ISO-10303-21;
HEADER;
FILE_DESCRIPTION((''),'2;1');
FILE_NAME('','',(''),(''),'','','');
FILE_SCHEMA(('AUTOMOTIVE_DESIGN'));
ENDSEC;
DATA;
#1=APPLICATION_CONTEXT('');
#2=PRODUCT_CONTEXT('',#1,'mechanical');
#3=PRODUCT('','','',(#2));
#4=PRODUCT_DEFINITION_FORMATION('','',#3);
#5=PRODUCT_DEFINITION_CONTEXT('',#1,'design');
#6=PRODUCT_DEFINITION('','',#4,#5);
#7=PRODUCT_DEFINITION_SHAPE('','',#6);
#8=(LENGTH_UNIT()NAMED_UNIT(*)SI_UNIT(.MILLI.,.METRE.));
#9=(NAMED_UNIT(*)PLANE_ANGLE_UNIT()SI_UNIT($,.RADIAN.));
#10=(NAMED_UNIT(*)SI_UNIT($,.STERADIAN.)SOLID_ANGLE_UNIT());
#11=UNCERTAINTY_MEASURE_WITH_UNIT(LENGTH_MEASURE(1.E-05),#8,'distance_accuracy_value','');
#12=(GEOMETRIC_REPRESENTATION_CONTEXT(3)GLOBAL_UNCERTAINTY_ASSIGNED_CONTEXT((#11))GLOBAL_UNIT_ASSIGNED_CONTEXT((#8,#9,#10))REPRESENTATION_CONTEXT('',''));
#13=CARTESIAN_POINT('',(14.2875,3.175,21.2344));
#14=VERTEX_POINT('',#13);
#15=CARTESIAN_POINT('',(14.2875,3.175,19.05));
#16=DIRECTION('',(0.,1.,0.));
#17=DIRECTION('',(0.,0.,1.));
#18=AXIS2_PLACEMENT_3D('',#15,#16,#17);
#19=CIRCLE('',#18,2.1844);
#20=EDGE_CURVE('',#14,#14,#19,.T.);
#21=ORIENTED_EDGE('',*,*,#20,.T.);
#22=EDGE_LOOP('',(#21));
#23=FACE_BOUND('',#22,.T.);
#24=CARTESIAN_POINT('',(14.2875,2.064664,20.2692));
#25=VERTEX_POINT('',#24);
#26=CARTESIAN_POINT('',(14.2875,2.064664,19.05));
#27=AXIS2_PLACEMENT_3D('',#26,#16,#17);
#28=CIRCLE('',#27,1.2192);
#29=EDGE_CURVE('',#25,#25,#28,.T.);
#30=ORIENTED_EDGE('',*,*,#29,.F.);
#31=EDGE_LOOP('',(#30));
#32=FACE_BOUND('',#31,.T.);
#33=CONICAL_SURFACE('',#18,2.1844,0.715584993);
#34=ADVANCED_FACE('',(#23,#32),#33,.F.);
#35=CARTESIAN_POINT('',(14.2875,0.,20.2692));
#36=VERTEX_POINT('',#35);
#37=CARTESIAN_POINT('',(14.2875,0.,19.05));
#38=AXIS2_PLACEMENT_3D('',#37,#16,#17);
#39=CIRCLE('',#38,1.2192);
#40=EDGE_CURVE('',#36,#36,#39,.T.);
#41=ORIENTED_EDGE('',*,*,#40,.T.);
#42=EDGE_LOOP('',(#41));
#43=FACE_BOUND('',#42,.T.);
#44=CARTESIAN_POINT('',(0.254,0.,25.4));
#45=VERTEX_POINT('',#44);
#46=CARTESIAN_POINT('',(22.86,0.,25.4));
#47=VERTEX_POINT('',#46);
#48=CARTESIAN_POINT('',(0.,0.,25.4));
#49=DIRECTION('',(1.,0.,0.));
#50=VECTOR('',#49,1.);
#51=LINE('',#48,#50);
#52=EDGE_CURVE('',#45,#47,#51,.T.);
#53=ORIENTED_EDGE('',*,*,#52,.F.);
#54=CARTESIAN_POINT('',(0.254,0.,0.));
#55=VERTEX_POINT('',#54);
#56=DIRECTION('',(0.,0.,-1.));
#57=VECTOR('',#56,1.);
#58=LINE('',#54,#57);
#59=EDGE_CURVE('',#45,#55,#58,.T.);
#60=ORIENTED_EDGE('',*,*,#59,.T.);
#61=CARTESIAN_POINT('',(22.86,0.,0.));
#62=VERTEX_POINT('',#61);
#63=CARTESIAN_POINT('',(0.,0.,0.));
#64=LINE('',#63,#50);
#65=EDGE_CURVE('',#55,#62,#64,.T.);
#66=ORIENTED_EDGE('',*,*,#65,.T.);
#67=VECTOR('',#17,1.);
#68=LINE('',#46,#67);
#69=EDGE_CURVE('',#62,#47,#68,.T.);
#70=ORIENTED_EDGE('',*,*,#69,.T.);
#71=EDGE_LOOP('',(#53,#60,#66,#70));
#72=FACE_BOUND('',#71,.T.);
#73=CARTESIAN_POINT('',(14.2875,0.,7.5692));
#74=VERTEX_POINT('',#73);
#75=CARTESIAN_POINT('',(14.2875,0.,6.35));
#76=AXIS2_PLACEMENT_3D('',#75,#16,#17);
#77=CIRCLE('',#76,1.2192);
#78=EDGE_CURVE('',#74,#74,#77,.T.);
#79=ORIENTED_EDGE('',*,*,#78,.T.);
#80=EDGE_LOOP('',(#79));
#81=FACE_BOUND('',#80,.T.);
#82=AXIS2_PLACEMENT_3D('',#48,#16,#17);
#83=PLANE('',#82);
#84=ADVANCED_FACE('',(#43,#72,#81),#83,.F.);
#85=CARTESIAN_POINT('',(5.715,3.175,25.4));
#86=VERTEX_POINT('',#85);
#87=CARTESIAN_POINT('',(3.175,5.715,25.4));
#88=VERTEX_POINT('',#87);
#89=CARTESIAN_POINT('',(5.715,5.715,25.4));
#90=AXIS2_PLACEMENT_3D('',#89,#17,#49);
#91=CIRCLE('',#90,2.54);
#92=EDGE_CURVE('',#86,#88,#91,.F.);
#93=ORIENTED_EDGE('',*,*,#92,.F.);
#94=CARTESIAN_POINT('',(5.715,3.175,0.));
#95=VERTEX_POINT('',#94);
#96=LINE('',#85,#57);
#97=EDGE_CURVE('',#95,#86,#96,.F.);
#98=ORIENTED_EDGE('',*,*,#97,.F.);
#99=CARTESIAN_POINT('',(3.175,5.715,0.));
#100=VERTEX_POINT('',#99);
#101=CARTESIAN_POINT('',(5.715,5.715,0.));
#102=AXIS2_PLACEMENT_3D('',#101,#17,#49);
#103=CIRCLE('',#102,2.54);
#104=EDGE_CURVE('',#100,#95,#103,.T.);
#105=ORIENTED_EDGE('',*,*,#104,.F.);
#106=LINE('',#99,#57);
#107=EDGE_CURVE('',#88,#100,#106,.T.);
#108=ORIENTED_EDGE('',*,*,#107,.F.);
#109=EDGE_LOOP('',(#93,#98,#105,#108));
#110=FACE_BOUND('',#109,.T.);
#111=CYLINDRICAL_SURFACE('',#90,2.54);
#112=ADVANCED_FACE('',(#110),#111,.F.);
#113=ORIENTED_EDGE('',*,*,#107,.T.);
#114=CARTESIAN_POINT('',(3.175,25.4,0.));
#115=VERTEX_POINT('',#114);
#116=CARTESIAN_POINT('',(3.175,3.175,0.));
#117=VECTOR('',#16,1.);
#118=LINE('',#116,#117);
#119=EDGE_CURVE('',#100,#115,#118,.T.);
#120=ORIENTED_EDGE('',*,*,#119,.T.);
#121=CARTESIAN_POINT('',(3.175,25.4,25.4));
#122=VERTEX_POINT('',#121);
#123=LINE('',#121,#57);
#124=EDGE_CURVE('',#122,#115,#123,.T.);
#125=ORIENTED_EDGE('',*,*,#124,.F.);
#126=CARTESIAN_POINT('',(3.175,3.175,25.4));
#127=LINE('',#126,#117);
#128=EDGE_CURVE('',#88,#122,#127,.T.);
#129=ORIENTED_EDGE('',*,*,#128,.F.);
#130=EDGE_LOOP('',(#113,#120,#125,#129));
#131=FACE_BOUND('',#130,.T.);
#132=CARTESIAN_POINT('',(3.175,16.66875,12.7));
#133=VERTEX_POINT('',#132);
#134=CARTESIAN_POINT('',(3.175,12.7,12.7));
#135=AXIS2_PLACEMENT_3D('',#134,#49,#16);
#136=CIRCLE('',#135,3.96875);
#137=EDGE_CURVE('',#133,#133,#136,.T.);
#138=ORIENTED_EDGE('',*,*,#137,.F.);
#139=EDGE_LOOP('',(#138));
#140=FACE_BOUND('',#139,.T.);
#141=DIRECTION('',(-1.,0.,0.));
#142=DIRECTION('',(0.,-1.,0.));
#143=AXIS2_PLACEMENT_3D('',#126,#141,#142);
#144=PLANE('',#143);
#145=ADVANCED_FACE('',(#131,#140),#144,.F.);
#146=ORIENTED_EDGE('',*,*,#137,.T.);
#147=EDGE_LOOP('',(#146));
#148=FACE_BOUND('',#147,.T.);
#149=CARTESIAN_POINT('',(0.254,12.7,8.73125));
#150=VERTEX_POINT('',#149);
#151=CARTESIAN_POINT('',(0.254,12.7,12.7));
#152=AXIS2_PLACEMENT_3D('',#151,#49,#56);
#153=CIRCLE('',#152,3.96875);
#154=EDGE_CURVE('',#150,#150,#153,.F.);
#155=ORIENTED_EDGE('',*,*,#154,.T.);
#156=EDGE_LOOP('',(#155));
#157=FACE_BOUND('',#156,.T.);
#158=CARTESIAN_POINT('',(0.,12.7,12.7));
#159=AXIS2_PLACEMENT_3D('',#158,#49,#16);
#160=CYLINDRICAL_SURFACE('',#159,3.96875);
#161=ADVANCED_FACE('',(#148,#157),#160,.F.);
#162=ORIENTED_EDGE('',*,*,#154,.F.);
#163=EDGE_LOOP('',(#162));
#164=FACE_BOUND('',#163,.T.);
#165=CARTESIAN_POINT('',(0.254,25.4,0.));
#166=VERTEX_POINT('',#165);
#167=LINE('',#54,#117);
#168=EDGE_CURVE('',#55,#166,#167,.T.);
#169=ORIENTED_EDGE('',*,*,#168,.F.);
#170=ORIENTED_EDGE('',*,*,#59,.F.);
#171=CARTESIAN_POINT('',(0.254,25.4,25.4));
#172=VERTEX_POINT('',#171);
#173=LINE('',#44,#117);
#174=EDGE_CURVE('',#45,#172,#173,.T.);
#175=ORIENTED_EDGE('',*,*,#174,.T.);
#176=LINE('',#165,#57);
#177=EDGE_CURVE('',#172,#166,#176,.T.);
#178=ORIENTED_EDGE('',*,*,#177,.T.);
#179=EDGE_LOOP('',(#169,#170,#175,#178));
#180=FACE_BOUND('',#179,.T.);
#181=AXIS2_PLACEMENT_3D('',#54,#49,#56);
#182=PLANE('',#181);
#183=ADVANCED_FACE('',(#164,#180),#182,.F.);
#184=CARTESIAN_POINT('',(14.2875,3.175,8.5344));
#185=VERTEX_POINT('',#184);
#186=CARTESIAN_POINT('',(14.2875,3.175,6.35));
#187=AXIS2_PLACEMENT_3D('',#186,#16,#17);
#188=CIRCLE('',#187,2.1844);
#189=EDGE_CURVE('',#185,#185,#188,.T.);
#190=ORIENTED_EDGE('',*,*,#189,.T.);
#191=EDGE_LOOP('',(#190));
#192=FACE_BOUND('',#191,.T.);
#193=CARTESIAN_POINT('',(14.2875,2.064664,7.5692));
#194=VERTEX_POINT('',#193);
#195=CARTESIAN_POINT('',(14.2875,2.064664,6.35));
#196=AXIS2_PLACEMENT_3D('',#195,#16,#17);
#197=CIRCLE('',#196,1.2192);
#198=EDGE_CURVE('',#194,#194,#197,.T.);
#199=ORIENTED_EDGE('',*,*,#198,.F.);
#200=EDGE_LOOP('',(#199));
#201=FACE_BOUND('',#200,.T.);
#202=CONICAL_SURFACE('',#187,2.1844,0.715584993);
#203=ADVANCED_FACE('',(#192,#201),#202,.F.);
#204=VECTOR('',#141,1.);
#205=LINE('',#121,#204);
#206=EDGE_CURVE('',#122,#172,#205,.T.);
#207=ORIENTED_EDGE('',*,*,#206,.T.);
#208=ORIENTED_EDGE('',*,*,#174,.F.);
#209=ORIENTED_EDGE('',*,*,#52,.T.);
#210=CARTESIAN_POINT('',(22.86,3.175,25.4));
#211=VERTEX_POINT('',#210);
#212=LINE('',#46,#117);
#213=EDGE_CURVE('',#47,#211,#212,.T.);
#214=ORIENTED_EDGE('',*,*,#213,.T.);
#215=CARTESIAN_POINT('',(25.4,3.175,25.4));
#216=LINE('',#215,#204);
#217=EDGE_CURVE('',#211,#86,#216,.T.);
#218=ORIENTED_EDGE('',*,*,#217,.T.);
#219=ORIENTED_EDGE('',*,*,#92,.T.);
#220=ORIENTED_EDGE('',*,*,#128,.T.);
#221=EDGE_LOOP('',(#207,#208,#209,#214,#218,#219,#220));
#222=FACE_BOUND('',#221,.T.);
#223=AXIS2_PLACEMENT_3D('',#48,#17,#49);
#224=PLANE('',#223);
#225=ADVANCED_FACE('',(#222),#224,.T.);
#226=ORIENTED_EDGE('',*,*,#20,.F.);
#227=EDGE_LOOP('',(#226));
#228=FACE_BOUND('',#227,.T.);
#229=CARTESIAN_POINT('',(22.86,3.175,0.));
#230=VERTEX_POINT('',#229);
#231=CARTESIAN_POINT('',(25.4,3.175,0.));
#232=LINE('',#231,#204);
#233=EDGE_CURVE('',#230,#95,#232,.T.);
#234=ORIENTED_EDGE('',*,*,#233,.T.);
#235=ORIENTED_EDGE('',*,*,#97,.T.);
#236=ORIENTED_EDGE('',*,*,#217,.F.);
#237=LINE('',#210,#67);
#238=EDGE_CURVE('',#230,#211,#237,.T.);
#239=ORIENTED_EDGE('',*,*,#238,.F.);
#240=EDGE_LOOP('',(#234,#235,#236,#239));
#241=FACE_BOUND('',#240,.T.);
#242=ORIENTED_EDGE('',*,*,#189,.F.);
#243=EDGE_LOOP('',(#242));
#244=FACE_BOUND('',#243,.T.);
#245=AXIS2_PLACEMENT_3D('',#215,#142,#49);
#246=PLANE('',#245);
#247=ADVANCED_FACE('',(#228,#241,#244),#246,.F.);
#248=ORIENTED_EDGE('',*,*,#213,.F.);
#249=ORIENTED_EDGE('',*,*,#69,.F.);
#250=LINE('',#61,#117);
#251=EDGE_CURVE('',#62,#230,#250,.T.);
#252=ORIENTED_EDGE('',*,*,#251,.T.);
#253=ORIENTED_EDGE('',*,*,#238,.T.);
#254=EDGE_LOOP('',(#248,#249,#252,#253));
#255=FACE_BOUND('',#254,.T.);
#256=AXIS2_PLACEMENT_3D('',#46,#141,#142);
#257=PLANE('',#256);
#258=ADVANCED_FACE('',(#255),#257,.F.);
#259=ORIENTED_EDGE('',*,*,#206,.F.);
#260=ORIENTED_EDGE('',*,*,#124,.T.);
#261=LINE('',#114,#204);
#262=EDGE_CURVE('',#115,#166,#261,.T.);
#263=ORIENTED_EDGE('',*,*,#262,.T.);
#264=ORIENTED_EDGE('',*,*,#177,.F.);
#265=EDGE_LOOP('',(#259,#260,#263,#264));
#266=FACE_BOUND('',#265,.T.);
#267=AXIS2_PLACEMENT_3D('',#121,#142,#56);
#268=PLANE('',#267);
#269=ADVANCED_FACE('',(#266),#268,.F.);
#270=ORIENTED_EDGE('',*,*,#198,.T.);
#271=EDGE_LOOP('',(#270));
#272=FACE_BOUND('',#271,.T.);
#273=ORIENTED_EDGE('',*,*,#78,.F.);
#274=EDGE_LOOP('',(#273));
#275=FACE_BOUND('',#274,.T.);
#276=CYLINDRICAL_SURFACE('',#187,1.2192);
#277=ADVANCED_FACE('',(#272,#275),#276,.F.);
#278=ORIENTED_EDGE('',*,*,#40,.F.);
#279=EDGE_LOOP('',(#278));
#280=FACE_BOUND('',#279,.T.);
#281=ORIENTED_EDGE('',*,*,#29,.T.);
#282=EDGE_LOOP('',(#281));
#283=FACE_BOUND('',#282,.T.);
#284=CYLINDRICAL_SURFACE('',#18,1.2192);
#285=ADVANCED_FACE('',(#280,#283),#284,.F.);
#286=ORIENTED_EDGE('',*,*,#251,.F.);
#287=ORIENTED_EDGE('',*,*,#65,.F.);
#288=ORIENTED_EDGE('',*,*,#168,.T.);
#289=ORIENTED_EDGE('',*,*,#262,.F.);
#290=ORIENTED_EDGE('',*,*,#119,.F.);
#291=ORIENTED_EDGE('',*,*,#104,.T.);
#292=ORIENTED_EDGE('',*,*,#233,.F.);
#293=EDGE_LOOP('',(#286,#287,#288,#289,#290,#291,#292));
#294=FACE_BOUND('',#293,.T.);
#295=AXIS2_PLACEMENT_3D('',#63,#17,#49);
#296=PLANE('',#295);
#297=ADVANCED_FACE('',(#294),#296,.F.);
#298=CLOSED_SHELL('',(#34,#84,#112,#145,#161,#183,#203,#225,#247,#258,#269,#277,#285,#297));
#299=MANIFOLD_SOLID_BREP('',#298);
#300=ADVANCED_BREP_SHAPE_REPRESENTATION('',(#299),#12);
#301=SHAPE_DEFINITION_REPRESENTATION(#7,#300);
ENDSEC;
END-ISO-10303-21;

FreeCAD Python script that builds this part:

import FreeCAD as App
import Part
import Sketcher
Q = App.Units.Quantity


def edges_at(feature, points):
    """Names of the edges that pass closest to the given points."""
    edges = feature.Shape.Edges
    near = lambda p: min(range(len(edges)), key=lambda i: edges[i].distToShape(Part.Vertex(*p))[0])
    return sorted({f"Edge{near(p) + 1}" for p in points})

doc = App.newDocument("Part")
body = doc.addObject("PartDesign::Body", "Body")

sketch1 = doc.addObject("Sketcher::SketchObject", "Sketch")
body.addObject(sketch1)
sketch1.AttachmentSupport = (doc.XY_Plane, [""])
sketch1.MapMode = "FlatFace"
sketch1.addGeometry(Part.LineSegment(App.Vector(0, 0, 0), App.Vector(25.4, 0, 0)), False)
sketch1.addGeometry(Part.LineSegment(App.Vector(25.4, 0, 0), App.Vector(25.4, 3.2, 0)), False)
sketch1.addGeometry(Part.LineSegment(App.Vector(25.4, 3.2, 0), App.Vector(3.2, 3.2, 0)), False)
sketch1.addGeometry(Part.LineSegment(App.Vector(3.2, 3.2, 0), App.Vector(3.2, 25.4, 0)), False)
sketch1.addGeometry(Part.LineSegment(App.Vector(3.2, 25.4, 0), App.Vector(0, 25.4, 0)), False)
sketch1.addGeometry(Part.LineSegment(App.Vector(0, 25.4, 0), App.Vector(0, 0, 0)), False)
sketch1.addConstraint(Sketcher.Constraint("Coincident", 0, 2, 1, 1))
sketch1.addConstraint(Sketcher.Constraint("Coincident", 1, 2, 2, 1))
sketch1.addConstraint(Sketcher.Constraint("Coincident", 2, 2, 3, 1))
sketch1.addConstraint(Sketcher.Constraint("Coincident", 3, 2, 4, 1))
sketch1.addConstraint(Sketcher.Constraint("Coincident", 4, 2, 5, 1))
sketch1.addConstraint(Sketcher.Constraint("Coincident", 5, 2, 0, 1))
sketch1.addConstraint(Sketcher.Constraint("Horizontal", 0))
sketch1.addConstraint(Sketcher.Constraint("Vertical", 1))
sketch1.addConstraint(Sketcher.Constraint("Horizontal", 2))
sketch1.addConstraint(Sketcher.Constraint("Vertical", 3))
sketch1.addConstraint(Sketcher.Constraint("Horizontal", 4))
sketch1.addConstraint(Sketcher.Constraint("Vertical", 5))
sketch1.addConstraint(Sketcher.Constraint("Coincident", 5, 2, -1, 1))
sketch1.addConstraint(Sketcher.Constraint("Equal", 4, 1))
sketch1.addConstraint(Sketcher.Constraint("Equal", 2, 3))
sketch1.addConstraint(Sketcher.Constraint("DistanceX", 0, 1, 0, 2, Q("1 in")))
sketch1.addConstraint(Sketcher.Constraint("DistanceX", 2, 2, 2, 1, Q("0.875 in")))
pad1 = doc.addObject("PartDesign::Pad", "Pad")
body.addObject(pad1)
pad1.Profile = sketch1
pad1.Length = Q("1 in")

sketch2 = doc.addObject("Sketcher::SketchObject", "Sketch001")
body.addObject(sketch2)
sketch2.AttachmentSupport = (doc.YZ_Plane, [""])
sketch2.MapMode = "FlatFace"
sketch2.AttachmentOffset = App.Placement(App.Vector(0, 0, 0.125 * 25.4), App.Rotation())
sketch2.addGeometry(Part.Circle(App.Vector(12.7, 12.7, 0), App.Vector(0, 0, 1), 4), False)
sketch2.addConstraint(Sketcher.Constraint("Diameter", 0, Q("0.3125 in")))
sketch2.addConstraint(Sketcher.Constraint("DistanceX", -1, 1, 0, 3, Q("0.5 in")))
sketch2.addConstraint(Sketcher.Constraint("DistanceY", -1, 1, 0, 3, Q("0.5 in")))
pocket1 = doc.addObject("PartDesign::Pocket", "Pocket")
body.addObject(pocket1)
pocket1.Profile = sketch2
pocket1.Type = "ThroughAll"

sketch3 = doc.addObject("Sketcher::SketchObject", "Sketch002")
body.addObject(sketch3)
sketch3.AttachmentSupport = (doc.XZ_Plane, [""])
sketch3.MapMode = "FlatFace"
sketch3.AttachmentOffset = App.Placement(App.Vector(0, 0, -0.125 * 25.4), App.Rotation())
sketch3.addGeometry(Part.Circle(App.Vector(14.3, 19.1, 0), App.Vector(0, 0, 1), 1.2), False)
sketch3.addGeometry(Part.Circle(App.Vector(14.3, 6.3, 0), App.Vector(0, 0, 1), 1.2), False)
sketch3.addConstraint(Sketcher.Constraint("Equal", 0, 1))
sketch3.addConstraint(Sketcher.Constraint("Vertical", 0, 3, 1, 3))
sketch3.addConstraint(Sketcher.Constraint("Diameter", 0, Q("0.096 in")))
sketch3.addConstraint(Sketcher.Constraint("DistanceY", 1, 3, 0, 3, Q("0.5 in")))
sketch3.addConstraint(Sketcher.Constraint("DistanceY", -1, 1, 0, 3, Q("0.75 in")))
sketch3.addConstraint(Sketcher.Constraint("DistanceX", -1, 1, 0, 3, Q("0.5625 in")))
doc.recompute()
hole = doc.addObject("PartDesign::Hole", "Hole")
body.addObject(hole)
hole.Profile = sketch3
hole.ThreadType = "None"
hole.Diameter = Q("0.096 in")
hole.DepthType = "Dimension"
hole.Depth = Q("0.125 in")
hole.DrillPoint = "Flat"
hole.HoleCutType = "Countersink"
hole.HoleCutDiameter = Q("0.172 in")
hole.HoleCutCountersinkAngle = 82
hole.Reversed = True

sketch4 = doc.addObject("Sketcher::SketchObject", "Sketch003")
body.addObject(sketch4)
sketch4.AttachmentSupport = (doc.XZ_Plane, [""])
sketch4.MapMode = "FlatFace"
sketch4.AttachmentOffset = App.Placement(App.Vector(0, 0, -0.125 * 25.4), App.Rotation())
sketch4.addGeometry(Part.LineSegment(App.Vector(22.9, 0, 0), App.Vector(22.9, 25.4, 0)), False)
sketch4.addGeometry(Part.LineSegment(App.Vector(22.9, 25.4, 0), App.Vector(25.4, 25.4, 0)), False)
sketch4.addGeometry(Part.LineSegment(App.Vector(25.4, 25.4, 0), App.Vector(25.4, 0, 0)), False)
sketch4.addGeometry(Part.LineSegment(App.Vector(25.4, 0, 0), App.Vector(22.9, 0, 0)), False)
sketch4.addConstraint(Sketcher.Constraint("Coincident", 0, 2, 1, 1))
sketch4.addConstraint(Sketcher.Constraint("Coincident", 1, 2, 2, 1))
sketch4.addConstraint(Sketcher.Constraint("Coincident", 2, 2, 3, 1))
sketch4.addConstraint(Sketcher.Constraint("Coincident", 3, 2, 0, 1))
sketch4.addConstraint(Sketcher.Constraint("Vertical", 0))
sketch4.addConstraint(Sketcher.Constraint("Horizontal", 1))
sketch4.addConstraint(Sketcher.Constraint("Vertical", 2))
sketch4.addConstraint(Sketcher.Constraint("Horizontal", 3))
sketch4.addConstraint(Sketcher.Constraint("PointOnObject", 2, 2, -1))
sketch4.addConstraint(Sketcher.Constraint("DistanceY", 0, 1, 0, 2, Q("1 in")))
sketch4.addConstraint(Sketcher.Constraint("DistanceX", 1, 1, 1, 2, Q("0.1 in")))
sketch4.addConstraint(Sketcher.Constraint("DistanceX", -1, 1, 1, 2, Q("1 in")))
pocket2 = doc.addObject("PartDesign::Pocket", "Pocket001")
body.addObject(pocket2)
pocket2.Profile = sketch4
pocket2.Type = "ThroughAll"
pocket2.Reversed = True
doc.recompute()

fillet = doc.addObject("PartDesign::Fillet", "Fillet")
body.addObject(fillet)
fillet.Base = (pocket2, edges_at(pocket2, [(3.175, 3.175, 12.7)]))
fillet.Radius = Q("0.1 in")

sketch5 = doc.addObject("Sketcher::SketchObject", "Sketch004")
body.addObject(sketch5)
sketch5.AttachmentSupport = (doc.XZ_Plane, [""])
sketch5.MapMode = "FlatFace"
sketch5.AttachmentOffset = App.Placement(App.Vector(0, 0, -1 * 25.4), App.Rotation())
sketch5.addGeometry(Part.LineSegment(App.Vector(0, 0, 0), App.Vector(0, 25.4, 0)), False)
sketch5.addGeometry(Part.LineSegment(App.Vector(0, 25.4, 0), App.Vector(0.25, 25.4, 0)), False)
sketch5.addGeometry(Part.LineSegment(App.Vector(0.25, 25.4, 0), App.Vector(0.25, 0, 0)), False)
sketch5.addGeometry(Part.LineSegment(App.Vector(0.25, 0, 0), App.Vector(0, 0, 0)), False)
sketch5.addConstraint(Sketcher.Constraint("Coincident", 0, 2, 1, 1))
sketch5.addConstraint(Sketcher.Constraint("Coincident", 1, 2, 2, 1))
sketch5.addConstraint(Sketcher.Constraint("Coincident", 2, 2, 3, 1))
sketch5.addConstraint(Sketcher.Constraint("Coincident", 3, 2, 0, 1))
sketch5.addConstraint(Sketcher.Constraint("Vertical", 0))
sketch5.addConstraint(Sketcher.Constraint("Horizontal", 1))
sketch5.addConstraint(Sketcher.Constraint("Vertical", 2))
sketch5.addConstraint(Sketcher.Constraint("Horizontal", 3))
sketch5.addConstraint(Sketcher.Constraint("Coincident", 3, 2, -1, 1))
sketch5.addConstraint(Sketcher.Constraint("DistanceY", 0, 1, 0, 2, Q("1 in")))
sketch5.addConstraint(Sketcher.Constraint("DistanceX", 1, 1, 1, 2, Q("0.01 in")))
pocket3 = doc.addObject("PartDesign::Pocket", "Pocket002")
body.addObject(pocket3)
pocket3.Profile = sketch5
pocket3.Type = "ThroughAll"
pocket3.Reversed = True

doc.recompute()
